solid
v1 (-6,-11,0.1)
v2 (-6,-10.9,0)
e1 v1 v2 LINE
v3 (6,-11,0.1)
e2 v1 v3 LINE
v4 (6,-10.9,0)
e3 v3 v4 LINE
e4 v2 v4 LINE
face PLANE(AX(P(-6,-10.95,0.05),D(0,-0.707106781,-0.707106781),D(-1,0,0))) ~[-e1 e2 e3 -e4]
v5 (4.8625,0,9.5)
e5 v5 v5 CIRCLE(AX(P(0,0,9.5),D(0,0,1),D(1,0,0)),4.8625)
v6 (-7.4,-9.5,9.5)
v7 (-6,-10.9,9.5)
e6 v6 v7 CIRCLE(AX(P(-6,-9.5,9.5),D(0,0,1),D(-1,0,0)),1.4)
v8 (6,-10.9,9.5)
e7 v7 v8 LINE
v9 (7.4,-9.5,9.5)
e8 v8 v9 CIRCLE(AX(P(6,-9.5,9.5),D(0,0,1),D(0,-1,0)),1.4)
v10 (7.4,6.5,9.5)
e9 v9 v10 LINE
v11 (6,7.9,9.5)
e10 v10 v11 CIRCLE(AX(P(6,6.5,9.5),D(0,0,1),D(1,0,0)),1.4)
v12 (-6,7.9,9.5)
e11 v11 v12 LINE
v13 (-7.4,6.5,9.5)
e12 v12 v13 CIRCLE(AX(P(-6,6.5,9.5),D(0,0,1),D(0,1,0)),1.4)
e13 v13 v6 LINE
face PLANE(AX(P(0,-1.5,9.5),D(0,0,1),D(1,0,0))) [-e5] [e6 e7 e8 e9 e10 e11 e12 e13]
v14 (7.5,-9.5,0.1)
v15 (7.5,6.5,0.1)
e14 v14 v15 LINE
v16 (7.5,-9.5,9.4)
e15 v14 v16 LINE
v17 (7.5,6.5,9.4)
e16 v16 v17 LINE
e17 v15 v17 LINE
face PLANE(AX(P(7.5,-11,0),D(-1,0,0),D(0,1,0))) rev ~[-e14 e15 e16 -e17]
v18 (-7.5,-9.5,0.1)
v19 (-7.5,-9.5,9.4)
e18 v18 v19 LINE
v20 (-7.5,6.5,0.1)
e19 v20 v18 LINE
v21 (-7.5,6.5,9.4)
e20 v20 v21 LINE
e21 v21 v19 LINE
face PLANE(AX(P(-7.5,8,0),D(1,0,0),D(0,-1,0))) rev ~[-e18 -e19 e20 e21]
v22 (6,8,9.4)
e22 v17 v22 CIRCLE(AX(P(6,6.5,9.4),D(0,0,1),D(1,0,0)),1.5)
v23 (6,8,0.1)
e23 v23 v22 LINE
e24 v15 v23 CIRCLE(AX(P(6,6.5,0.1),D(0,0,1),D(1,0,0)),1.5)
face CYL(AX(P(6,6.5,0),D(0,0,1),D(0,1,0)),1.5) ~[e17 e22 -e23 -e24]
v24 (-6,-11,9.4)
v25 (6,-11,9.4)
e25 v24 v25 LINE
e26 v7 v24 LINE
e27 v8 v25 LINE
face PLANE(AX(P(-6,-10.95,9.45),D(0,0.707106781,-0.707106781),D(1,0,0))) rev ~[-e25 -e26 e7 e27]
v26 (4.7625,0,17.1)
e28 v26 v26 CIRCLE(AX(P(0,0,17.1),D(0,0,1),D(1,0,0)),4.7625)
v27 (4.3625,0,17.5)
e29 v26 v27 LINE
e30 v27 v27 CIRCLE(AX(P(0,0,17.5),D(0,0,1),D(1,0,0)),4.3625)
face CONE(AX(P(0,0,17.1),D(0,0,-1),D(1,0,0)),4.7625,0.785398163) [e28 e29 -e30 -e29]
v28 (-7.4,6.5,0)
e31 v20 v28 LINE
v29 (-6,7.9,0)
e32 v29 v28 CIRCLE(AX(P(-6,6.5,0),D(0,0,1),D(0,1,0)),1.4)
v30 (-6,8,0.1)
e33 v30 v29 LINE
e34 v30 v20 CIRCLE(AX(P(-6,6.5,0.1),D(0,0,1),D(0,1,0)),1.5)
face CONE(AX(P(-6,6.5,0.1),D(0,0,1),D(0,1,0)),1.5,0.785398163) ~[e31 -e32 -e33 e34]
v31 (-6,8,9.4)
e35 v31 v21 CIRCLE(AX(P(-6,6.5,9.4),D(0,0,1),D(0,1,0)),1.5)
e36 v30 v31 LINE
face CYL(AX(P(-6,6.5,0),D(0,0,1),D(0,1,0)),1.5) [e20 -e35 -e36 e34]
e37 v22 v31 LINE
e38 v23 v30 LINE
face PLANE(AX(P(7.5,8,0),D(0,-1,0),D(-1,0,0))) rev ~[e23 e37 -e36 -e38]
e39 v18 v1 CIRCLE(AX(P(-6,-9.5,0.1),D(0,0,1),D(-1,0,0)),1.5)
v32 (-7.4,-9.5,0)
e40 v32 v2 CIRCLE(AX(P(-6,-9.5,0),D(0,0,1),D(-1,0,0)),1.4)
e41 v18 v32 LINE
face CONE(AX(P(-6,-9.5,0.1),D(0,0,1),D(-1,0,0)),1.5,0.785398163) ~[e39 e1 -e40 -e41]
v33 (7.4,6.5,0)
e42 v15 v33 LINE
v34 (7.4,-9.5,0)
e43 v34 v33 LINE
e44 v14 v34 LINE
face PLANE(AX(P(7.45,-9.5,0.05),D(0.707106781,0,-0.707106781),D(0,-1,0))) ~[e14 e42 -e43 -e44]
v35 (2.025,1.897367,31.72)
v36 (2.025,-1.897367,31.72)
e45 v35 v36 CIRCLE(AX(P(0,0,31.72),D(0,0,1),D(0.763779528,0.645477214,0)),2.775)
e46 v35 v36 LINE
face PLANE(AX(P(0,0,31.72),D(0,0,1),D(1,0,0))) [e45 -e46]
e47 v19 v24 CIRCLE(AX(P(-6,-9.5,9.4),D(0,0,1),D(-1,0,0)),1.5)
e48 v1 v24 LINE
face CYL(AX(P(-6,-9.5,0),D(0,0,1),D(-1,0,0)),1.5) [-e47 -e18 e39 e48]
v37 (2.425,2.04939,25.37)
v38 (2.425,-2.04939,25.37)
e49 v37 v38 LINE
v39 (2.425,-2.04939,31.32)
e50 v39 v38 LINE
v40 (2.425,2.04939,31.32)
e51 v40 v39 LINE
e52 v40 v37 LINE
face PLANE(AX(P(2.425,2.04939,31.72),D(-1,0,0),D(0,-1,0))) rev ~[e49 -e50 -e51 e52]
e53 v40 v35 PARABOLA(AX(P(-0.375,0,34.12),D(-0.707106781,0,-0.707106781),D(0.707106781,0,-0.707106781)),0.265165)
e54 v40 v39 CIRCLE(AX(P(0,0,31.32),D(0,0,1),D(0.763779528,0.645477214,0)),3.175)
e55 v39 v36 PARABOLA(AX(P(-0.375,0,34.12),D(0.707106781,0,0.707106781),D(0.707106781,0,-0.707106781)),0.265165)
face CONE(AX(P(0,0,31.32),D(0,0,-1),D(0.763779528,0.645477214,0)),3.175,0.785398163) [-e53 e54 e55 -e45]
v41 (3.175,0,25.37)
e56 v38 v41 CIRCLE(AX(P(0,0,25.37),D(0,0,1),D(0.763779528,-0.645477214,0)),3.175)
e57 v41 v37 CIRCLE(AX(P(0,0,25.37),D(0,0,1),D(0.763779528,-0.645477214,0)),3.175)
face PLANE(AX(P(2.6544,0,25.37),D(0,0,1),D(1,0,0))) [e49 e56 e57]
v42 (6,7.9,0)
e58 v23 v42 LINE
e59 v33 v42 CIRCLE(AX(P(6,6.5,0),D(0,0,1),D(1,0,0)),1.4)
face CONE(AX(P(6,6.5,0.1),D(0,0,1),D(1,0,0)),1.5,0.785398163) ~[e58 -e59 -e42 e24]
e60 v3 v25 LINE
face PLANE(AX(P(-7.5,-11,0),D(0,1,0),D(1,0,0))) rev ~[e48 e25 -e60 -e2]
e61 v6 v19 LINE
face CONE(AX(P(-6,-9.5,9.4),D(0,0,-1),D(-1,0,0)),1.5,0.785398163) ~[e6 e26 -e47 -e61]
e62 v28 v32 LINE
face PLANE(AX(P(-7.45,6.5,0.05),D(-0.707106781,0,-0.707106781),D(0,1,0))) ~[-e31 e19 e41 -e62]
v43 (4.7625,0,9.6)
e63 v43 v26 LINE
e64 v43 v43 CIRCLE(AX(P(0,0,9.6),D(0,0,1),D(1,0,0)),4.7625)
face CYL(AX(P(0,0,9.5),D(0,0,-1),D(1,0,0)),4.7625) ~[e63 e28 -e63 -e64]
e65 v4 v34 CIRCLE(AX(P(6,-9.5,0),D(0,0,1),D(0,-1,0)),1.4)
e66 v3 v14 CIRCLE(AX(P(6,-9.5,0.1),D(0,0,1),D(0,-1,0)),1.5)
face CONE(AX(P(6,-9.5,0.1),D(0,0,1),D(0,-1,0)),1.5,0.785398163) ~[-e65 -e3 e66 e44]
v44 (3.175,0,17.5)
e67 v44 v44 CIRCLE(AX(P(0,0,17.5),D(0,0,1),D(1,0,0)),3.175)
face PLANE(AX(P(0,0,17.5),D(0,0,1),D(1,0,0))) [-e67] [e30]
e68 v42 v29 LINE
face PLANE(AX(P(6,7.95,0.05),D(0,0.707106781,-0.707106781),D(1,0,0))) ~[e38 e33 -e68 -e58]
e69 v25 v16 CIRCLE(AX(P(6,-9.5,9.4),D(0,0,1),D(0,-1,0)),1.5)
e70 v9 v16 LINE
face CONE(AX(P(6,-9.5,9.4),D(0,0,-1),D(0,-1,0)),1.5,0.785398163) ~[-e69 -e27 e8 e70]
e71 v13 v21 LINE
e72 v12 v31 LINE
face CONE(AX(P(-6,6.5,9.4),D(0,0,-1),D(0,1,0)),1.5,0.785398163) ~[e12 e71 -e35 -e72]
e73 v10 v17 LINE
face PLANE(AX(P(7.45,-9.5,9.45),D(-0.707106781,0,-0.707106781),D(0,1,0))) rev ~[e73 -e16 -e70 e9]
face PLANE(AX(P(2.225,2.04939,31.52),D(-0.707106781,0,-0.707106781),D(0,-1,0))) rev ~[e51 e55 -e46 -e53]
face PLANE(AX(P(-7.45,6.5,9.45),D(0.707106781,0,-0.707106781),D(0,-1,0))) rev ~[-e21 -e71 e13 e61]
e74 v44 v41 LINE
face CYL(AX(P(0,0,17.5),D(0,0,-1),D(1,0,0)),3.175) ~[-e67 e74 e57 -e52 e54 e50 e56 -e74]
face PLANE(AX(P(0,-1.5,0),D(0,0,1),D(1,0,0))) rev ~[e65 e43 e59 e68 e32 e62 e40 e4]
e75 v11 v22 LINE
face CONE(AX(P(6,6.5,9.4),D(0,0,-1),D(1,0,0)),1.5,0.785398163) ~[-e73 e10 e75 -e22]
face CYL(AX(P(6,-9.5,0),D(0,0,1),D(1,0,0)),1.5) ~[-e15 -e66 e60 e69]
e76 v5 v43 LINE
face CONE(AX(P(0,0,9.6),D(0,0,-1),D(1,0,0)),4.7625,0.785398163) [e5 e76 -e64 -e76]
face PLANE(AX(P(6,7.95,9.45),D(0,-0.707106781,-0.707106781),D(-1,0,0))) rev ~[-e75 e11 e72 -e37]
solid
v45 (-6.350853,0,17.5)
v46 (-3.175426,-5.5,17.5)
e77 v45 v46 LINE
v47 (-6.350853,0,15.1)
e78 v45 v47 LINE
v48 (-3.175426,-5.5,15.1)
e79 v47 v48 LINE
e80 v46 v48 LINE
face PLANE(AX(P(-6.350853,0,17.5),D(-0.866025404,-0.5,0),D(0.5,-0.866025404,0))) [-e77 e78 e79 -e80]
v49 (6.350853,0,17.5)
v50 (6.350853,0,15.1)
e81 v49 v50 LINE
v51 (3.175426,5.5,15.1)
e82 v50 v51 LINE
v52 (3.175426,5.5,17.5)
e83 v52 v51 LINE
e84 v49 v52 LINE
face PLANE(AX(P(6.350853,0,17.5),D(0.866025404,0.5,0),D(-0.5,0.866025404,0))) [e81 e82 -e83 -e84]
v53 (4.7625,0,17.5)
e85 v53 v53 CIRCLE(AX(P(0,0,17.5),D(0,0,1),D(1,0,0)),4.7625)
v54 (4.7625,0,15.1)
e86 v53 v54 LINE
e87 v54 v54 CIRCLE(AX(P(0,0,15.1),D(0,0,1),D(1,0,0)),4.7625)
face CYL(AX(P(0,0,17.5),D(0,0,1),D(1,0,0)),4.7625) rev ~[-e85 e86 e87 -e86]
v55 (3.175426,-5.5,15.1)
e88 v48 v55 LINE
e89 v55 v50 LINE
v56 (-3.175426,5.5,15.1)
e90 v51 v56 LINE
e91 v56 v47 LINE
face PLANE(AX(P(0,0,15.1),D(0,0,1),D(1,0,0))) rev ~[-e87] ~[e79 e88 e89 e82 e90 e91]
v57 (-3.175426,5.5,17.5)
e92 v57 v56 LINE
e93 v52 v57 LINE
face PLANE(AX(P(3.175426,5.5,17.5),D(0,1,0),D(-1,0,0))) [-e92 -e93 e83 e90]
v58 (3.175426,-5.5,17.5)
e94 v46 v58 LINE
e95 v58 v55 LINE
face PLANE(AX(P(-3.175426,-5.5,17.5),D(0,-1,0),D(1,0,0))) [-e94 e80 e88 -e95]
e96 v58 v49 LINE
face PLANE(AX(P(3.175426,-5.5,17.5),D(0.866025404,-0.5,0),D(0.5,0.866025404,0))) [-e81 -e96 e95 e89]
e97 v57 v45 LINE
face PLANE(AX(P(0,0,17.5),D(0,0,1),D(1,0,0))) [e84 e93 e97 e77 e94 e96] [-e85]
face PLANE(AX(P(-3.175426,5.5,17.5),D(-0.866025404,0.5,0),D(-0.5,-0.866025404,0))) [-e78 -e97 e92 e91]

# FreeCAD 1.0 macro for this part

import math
import FreeCAD as App
import Part
import Sketcher

V = App.Vector
Q = App.Units.Quantity


def edges_at(feature, points):
    """Names of the edges that pass closest to the given points."""
    edges = feature.Shape.Edges
    near = lambda p: min(range(len(edges)), key=lambda i: edges[i].distToShape(Part.Vertex(*p))[0])
    return sorted({f"Edge{near(p) + 1}" for p in points})

doc = App.newDocument("Part")
body = doc.addObject("PartDesign::Body", "Body")

# Sketch on XY plane
sketch1 = body.newObject("Sketcher::SketchObject", "Sketch")
sketch1.AttachmentSupport = (doc.getObject("XY_Plane"), [""])
sketch1.MapMode = "FlatFace"
sketch1.addGeometry([
    Part.LineSegment(V(7.5, 8, 0), V(-7.5, 8, 0)),
    Part.LineSegment(V(-7.5, 8, 0), V(-7.5, -11, 0)),
    Part.LineSegment(V(-7.5, -11, 0), V(7.5, -11, 0)),
    Part.LineSegment(V(7.5, -11, 0), V(7.5, 8, 0)),
], False)
sketch1.addConstraint([
    Sketcher.Constraint("Coincident", 0, 2, 1, 1),
    Sketcher.Constraint("Coincident", 1, 2, 2, 1),
    Sketcher.Constraint("Coincident", 2, 2, 3, 1),
    Sketcher.Constraint("Coincident", 3, 2, 0, 1),
    Sketcher.Constraint("Horizontal", 0),
    Sketcher.Constraint("Vertical", 1),
    Sketcher.Constraint("Horizontal", 2),
    Sketcher.Constraint("Vertical", 3),
    Sketcher.Constraint("DistanceX", 0, 2, 0, 1, Q("15 mm")),
    Sketcher.Constraint("DistanceY", 1, 2, 1, 1, Q("19 mm")),
    Sketcher.Constraint("DistanceY", -1, 1, 0, 2, Q("8 mm")),
    Sketcher.Constraint("DistanceX", 0, 2, -1, 1, Q("7.5 mm")),
])
pad1 = body.newObject("PartDesign::Pad", "Pad")
pad1.Profile = sketch1
pad1.Length = 9.5

# Sketch on XY plane
sketch2 = body.newObject("Sketcher::SketchObject", "Sketch001")
sketch2.AttachmentSupport = (doc.getObject("XY_Plane"), [""])
sketch2.MapMode = "FlatFace"
sketch2.AttachmentOffset = App.Placement(V(0, 0, 9.5), App.Rotation())
sketch2.addGeometry(Part.Circle(V(0, 0, 0), V(0, 0, 1), 4.7625), False)
sketch2.addConstraint([
    Sketcher.Constraint("Coincident", 0, 3, -1, 1),
    Sketcher.Constraint("Diameter", 0, Q("9.525 mm")),
])
pad2 = body.newObject("PartDesign::Pad", "Pad001")
pad2.Profile = sketch2
pad2.Length = 8

# Sketch on XY plane
sketch3 = body.newObject("Sketcher::SketchObject", "Sketch002")
sketch3.AttachmentSupport = (doc.getObject("XY_Plane"), [""])
sketch3.MapMode = "FlatFace"
sketch3.AttachmentOffset = App.Placement(V(0, 0, 17.5), App.Rotation())
sketch3.addGeometry(Part.Circle(V(0, 0, 0), V(0, 0, 1), 3.175), False)
sketch3.addConstraint([
    Sketcher.Constraint("Coincident", 0, 3, -1, 1),
    Sketcher.Constraint("Diameter", 0, Q("6.35 mm")),
])
pad3 = body.newObject("PartDesign::Pad", "Pad002")
pad3.Profile = sketch3
pad3.Length = 14.22

# Sketch on XY plane
sketch4 = body.newObject("Sketcher::SketchObject", "Sketch003")
sketch4.AttachmentSupport = (doc.getObject("XY_Plane"), [""])
sketch4.MapMode = "FlatFace"
sketch4.AttachmentOffset = App.Placement(V(0, 0, 31.72), App.Rotation())
sketch4.addGeometry([
    Part.LineSegment(V(2.425, 2.04939, 0), V(2.425, -2.04939, 0)),
    Part.ArcOfCircle(Part.Circle(V(0, 0, 0), V(0, 0, 1), 3.175), math.radians(-40.201465), math.radians(40.201465)),
], False)
sketch4.addConstraint([
    Sketcher.Constraint("Coincident", 0, 1, 1, 2),
    Sketcher.Constraint("Coincident", 1, 1, 0, 2),
    Sketcher.Constraint("Vertical", 0),
    Sketcher.Constraint("Coincident", 1, 3, -1, 1),
    Sketcher.Constraint("Radius", 1, Q("3.175 mm")),
    Sketcher.Constraint("DistanceX", -1, 1, 0, 1, Q("2.425 mm")),
])
pocket1 = body.newObject("PartDesign::Pocket", "Pocket")
pocket1.Profile = sketch4
pocket1.Length = 6.35
doc.recompute()

chamfer = body.newObject("PartDesign::Chamfer", "Chamfer")
chamfer.Base = (pocket1, edges_at(pocket1, [(-3.175, 0, 31.72), (2.425, 0, 31.72), (-4.763, 0, 17.5)]))
chamfer.Size = 0.4
doc.recompute()

fillet = body.newObject("PartDesign::Fillet", "Fillet")
fillet.Base = (chamfer, edges_at(chamfer, [
    (-7.5, -11, 4.75),
    (7.5, -11, 4.75),
    (7.5, 8, 4.75),
    (-7.5, 8, 4.75),
]))
fillet.Radius = 1.5
doc.recompute()

chamfer2 = body.newObject("PartDesign::Chamfer", "Chamfer001")
chamfer2.Base = (fillet, edges_at(fillet, [
    (0, 8, 9.5),
    (7.061, 7.561, 9.5),
    (-7.061, 7.561, 9.5),
    (7.5, -1.5, 9.5),
    (-7.5, -1.5, 9.5),
    (7.061, -10.561, 9.5),
    (-7.061, -10.561, 9.5),
    (0, -11, 9.5),
    (-4.763, 0, 9.5),
    (0, 8, 0),
    (7.061, 7.561, 0),
    (-7.061, 7.561, 0),
    (7.5, -1.5, 0),
    (-7.5, -1.5, 0),
    (7.061, -10.561, 0),
    (-7.061, -10.561, 0),
    (0, -11, 0),
]))
chamfer2.Size = 0.1
body2 = doc.addObject("PartDesign::Body", "Body001")

# Sketch on XY plane
sketch5 = body2.newObject("Sketcher::SketchObject", "Sketch004")
sketch5.AttachmentSupport = (doc.getObject("XY_Plane001"), [""])
sketch5.MapMode = "FlatFace"
sketch5.AttachmentOffset = App.Placement(V(0, 0, 17.5), App.Rotation())
sketch5.addGeometry([
    Part.LineSegment(V(3.175426, 5.5, 0), V(-3.175426, 5.5, 0)),  # 0
    Part.LineSegment(V(-3.175426, 5.5, 0), V(-6.350853, 0, 0)),  # 1
    Part.LineSegment(V(-6.350853, 0, 0), V(-3.175426, -5.5, 0)),  # 2
    Part.LineSegment(V(-3.175426, -5.5, 0), V(3.175426, -5.5, 0)),  # 3
    Part.LineSegment(V(3.175426, -5.5, 0), V(6.350853, 0, 0)),  # 4
    Part.LineSegment(V(6.350853, 0, 0), V(3.175426, 5.5, 0)),  # 5
    Part.Circle(V(0, 0, 0), V(0, 0, 1), 4.7625),  # 6
], False)
sketch5.addConstraint([
    Sketcher.Constraint("Coincident", 0, 2, 1, 1),
    Sketcher.Constraint("Coincident", 1, 2, 2, 1),
    Sketcher.Constraint("Coincident", 2, 2, 3, 1),
    Sketcher.Constraint("Coincident", 3, 2, 4, 1),
    Sketcher.Constraint("Coincident", 4, 2, 5, 1),
    Sketcher.Constraint("Coincident", 5, 2, 0, 1),
    Sketcher.Constraint("Horizontal", 0),
    Sketcher.Constraint("Horizontal", 3),
    Sketcher.Constraint("Coincident", 6, 3, -1, 1),
    Sketcher.Constraint("Symmetric", 0, 2, 3, 2, -1, 1),
    Sketcher.Constraint("Symmetric", 1, 2, 4, 2, -1, 1),
    Sketcher.Constraint("PointOnObject", 1, 2, -1),
    Sketcher.Constraint("Parallel", 2, 5),
    Sketcher.Constraint("Vertical", 0, 2, 2, 2),
    Sketcher.Constraint("Angle", 1, Q("-120 deg")),
    Sketcher.Constraint("Diameter", 6, Q("9.525 mm")),
    Sketcher.Constraint("DistanceY", 2, 2, 0, 2, Q("11 mm")),
    Sketcher.Constraint("DistanceX", 0, 2, 0, 1, Q("6.350853 mm")),
])
pad4 = body2.newObject("PartDesign::Pad", "Pad003")
pad4.Profile = sketch5
pad4.Length = 2.4
pad4.Reversed = True

doc.recompute()
